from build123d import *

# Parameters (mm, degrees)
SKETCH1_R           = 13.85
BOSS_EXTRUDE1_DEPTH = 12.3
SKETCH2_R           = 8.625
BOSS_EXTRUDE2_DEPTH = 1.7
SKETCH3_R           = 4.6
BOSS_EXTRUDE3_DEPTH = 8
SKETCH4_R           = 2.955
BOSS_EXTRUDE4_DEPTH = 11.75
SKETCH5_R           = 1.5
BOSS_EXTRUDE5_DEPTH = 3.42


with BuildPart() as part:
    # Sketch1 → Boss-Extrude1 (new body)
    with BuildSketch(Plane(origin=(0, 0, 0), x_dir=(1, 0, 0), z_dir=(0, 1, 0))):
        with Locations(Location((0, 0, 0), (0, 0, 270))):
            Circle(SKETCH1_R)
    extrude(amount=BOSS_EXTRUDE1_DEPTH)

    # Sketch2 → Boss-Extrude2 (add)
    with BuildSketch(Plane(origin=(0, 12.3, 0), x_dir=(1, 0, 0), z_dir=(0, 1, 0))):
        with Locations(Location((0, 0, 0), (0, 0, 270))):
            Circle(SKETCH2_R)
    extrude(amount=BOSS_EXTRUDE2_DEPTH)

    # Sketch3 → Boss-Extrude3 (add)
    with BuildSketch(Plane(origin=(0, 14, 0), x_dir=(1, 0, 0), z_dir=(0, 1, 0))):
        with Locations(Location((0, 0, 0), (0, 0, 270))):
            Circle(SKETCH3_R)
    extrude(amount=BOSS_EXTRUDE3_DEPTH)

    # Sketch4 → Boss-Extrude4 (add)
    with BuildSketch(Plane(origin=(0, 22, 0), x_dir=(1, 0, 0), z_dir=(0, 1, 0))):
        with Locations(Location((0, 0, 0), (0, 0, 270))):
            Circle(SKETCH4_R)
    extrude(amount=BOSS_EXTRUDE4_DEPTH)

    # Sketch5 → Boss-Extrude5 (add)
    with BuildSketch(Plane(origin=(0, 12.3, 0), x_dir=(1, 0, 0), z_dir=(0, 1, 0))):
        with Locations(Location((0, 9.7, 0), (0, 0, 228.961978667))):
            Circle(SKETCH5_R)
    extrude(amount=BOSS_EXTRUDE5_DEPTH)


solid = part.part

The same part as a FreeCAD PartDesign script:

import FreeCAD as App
import Part
import Sketcher

V = App.Vector
Q = App.Units.Quantity

doc = App.newDocument("Part")
body = doc.addObject("PartDesign::Body", "Body")

# Sketch on XZ plane
sketch1 = body.newObject("Sketcher::SketchObject", "Sketch")
sketch1.AttachmentSupport = (doc.getObject("XZ_Plane"), [""])
sketch1.MapMode = "FlatFace"
sketch1.addGeometry(Part.Circle(V(0, 0, 0), V(0, 0, 1), 14), False)
sketch1.addConstraint(Sketcher.Constraint("Coincident", 0, 3, -1, 1))
sketch1.addConstraint(Sketcher.Constraint("Diameter", 0, Q("27.7 mm")))
pad1 = body.newObject("PartDesign::Pad", "Pad")
pad1.Profile = sketch1
pad1.Length = 12.3
pad1.Reversed = True

# Sketch on XZ plane
sketch2 = body.newObject("Sketcher::SketchObject", "Sketch001")
sketch2.AttachmentSupport = (doc.getObject("XZ_Plane"), [""])
sketch2.MapMode = "FlatFace"
sketch2.AttachmentOffset = App.Placement(V(0, 0, -12.3), App.Rotation())
sketch2.addGeometry(Part.Circle(V(0, 0, 0), V(0, 0, 1), 9), False)
sketch2.addConstraint(Sketcher.Constraint("Coincident", 0, 3, -1, 1))
sketch2.addConstraint(Sketcher.Constraint("Diameter", 0, Q("17.25 mm")))
pad2 = body.newObject("PartDesign::Pad", "Pad001")
pad2.Profile = sketch2
pad2.Length = 1.7
pad2.Reversed = True

# Sketch on XZ plane
sketch3 = body.newObject("Sketcher::SketchObject", "Sketch002")
sketch3.AttachmentSupport = (doc.getObject("XZ_Plane"), [""])
sketch3.MapMode = "FlatFace"
sketch3.AttachmentOffset = App.Placement(V(0, 0, -14), App.Rotation())
sketch3.addGeometry(Part.Circle(V(0, 0, 0), V(0, 0, 1), 4.6), False)
sketch3.addConstraint(Sketcher.Constraint("Coincident", 0, 3, -1, 1))
sketch3.addConstraint(Sketcher.Constraint("Diameter", 0, Q("9.2 mm")))
pad3 = body.newObject("PartDesign::Pad", "Pad002")
pad3.Profile = sketch3
pad3.Length = 8
pad3.Reversed = True

# Sketch on XZ plane
sketch4 = body.newObject("Sketcher::SketchObject", "Sketch003")
sketch4.AttachmentSupport = (doc.getObject("XZ_Plane"), [""])
sketch4.MapMode = "FlatFace"
sketch4.AttachmentOffset = App.Placement(V(0, 0, -22), App.Rotation())
sketch4.addGeometry(Part.Circle(V(0, 0, 0), V(0, 0, 1), 3), False)
sketch4.addConstraint(Sketcher.Constraint("Coincident", 0, 3, -1, 1))
sketch4.addConstraint(Sketcher.Constraint("Diameter", 0, Q("5.91 mm")))
pad4 = body.newObject("PartDesign::Pad", "Pad003")
pad4.Profile = sketch4
pad4.Length = 11.75
pad4.Reversed = True

# Sketch on XZ plane
sketch5 = body.newObject("Sketcher::SketchObject", "Sketch004")
sketch5.AttachmentSupport = (doc.getObject("XZ_Plane"), [""])
sketch5.MapMode = "FlatFace"
sketch5.AttachmentOffset = App.Placement(V(0, 0, -12.3), App.Rotation())
sketch5.addGeometry(Part.Circle(V(0, -9.7, 0), V(0, 0, 1), 1.5), False)
sketch5.addConstraint(Sketcher.Constraint("PointOnObject", 0, 3, -2))
sketch5.addConstraint(Sketcher.Constraint("Diameter", 0, Q("3 mm")))
sketch5.addConstraint(Sketcher.Constraint("DistanceY", 0, 3, -1, 1, Q("9.7 mm")))
pad5 = body.newObject("PartDesign::Pad", "Pad004")
pad5.Profile = sketch5
pad5.Length = 3.42
pad5.Reversed = True

doc.recompute()
